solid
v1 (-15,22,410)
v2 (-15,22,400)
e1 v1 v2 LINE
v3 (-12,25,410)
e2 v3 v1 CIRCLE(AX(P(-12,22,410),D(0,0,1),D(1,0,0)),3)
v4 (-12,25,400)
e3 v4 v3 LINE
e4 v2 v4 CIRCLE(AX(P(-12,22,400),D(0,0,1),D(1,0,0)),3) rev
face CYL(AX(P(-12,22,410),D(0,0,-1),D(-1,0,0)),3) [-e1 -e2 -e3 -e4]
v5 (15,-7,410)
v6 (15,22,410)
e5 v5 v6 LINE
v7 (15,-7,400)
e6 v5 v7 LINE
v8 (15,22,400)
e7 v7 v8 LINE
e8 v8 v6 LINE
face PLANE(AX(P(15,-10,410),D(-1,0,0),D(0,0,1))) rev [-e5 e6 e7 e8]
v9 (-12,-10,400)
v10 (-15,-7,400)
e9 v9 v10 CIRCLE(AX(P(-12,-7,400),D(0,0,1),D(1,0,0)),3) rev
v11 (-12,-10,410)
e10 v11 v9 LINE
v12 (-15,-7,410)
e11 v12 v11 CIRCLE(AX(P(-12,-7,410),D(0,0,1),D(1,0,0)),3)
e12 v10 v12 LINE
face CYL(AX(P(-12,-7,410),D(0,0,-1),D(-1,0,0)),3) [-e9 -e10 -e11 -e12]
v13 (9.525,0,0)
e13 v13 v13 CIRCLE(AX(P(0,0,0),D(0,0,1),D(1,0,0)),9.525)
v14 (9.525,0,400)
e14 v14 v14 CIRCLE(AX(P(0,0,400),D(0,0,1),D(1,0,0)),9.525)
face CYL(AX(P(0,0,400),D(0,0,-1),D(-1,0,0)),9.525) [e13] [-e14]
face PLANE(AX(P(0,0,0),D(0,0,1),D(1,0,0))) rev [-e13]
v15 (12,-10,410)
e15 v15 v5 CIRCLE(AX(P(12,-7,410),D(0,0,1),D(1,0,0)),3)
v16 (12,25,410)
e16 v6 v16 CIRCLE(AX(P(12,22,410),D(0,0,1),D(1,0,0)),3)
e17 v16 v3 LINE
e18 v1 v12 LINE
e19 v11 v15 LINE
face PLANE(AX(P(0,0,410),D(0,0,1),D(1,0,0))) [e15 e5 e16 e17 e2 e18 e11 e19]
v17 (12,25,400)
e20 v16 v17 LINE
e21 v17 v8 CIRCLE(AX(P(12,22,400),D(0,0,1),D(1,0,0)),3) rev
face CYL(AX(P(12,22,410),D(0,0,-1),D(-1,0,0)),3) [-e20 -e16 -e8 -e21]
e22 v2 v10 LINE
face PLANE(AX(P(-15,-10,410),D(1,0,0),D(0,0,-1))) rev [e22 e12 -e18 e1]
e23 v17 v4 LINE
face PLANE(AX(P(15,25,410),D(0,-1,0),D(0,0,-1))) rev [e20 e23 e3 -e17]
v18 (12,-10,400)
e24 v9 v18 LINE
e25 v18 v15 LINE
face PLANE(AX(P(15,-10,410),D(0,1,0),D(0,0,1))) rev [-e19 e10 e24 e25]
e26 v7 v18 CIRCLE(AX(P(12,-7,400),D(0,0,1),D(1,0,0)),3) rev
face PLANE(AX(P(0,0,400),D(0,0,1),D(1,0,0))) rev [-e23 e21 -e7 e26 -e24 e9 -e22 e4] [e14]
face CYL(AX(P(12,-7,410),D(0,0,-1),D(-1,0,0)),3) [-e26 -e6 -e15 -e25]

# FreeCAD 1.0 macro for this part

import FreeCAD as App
import Part
import Sketcher
from FreeCAD import Vector


def edges_at(feature, points):
    """Names of the edges that pass closest to the given points."""
    edges = feature.Shape.Edges
    near = lambda p: min(range(len(edges)), key=lambda i: edges[i].distToShape(Part.Vertex(*p))[0])
    return sorted({f"Edge{near(p) + 1}" for p in points})


def add_polygon(sketch, points):
    """Adds a closed chain of lines whose ends are joined by coincident constraints."""
    first, n = sketch.GeometryCount, len(points)
    for a, b in zip(points, points[1:] + points[:1]):
        sketch.addGeometry(Part.LineSegment(App.Vector(*a, 0), App.Vector(*b, 0)), False)
    for i in range(n):
        sketch.addConstraint(Sketcher.Constraint("Coincident", first + i, 2, first + (i + 1) % n, 1))

doc = App.newDocument("Part")
body = doc.addObject("PartDesign::Body", "Body")

sketch1 = body.newObject("Sketcher::SketchObject", "Sketch")
sketch1.AttachmentSupport = (doc.getObject("XY_Plane"), [""])
sketch1.MapMode = "FlatFace"
sketch1.addGeometry(Part.Circle(Vector(0, 0, 0), Vector(0, 0, 1), 9.525), False)
sketch1.addConstraint([
    Sketcher.Constraint("Coincident", 0, 3, -1, 1),
    Sketcher.Constraint("Diameter", 0, 19.05),
])
pad1 = body.newObject("PartDesign::Pad", "Pad")
pad1.Profile = sketch1
pad1.Length = 400

sketch2 = body.newObject("Sketcher::SketchObject", "Sketch001")
sketch2.AttachmentSupport = (doc.getObject("XY_Plane"), [""])
sketch2.MapMode = "FlatFace"
sketch2.AttachmentOffset = App.Placement(Vector(0, 0, 400), App.Rotation())
add_polygon(sketch2, [(-15, 25), (-15, -10), (15, -10), (15, 25)])
sketch2.addConstraint([
    Sketcher.Constraint("Vertical", 0),
    Sketcher.Constraint("Horizontal", 1),
    Sketcher.Constraint("Vertical", 2),
    Sketcher.Constraint("Horizontal", 3),
    Sketcher.Constraint("DistanceX", 1, 1, 1, 2, 30.0),
    Sketcher.Constraint("DistanceY", 0, 2, 0, 1, 35.0),
    Sketcher.Constraint("DistanceX", 0, 2, -1, 1, 15.0),
    Sketcher.Constraint("DistanceY", 0, 2, -1, 1, 10.0),
])
pad2 = body.newObject("PartDesign::Pad", "Pad001")
pad2.Profile = sketch2
pad2.Length = 10
doc.recompute()

fillet = body.newObject("PartDesign::Fillet", "Fillet")
fillet.Base = (pad2, edges_at(pad2, [
    (-15, 25, 405),
    (-15, -10, 405),
    (15, -10, 405),
    (15, 25, 405),
]))
fillet.Radius = 3

doc.recompute()
